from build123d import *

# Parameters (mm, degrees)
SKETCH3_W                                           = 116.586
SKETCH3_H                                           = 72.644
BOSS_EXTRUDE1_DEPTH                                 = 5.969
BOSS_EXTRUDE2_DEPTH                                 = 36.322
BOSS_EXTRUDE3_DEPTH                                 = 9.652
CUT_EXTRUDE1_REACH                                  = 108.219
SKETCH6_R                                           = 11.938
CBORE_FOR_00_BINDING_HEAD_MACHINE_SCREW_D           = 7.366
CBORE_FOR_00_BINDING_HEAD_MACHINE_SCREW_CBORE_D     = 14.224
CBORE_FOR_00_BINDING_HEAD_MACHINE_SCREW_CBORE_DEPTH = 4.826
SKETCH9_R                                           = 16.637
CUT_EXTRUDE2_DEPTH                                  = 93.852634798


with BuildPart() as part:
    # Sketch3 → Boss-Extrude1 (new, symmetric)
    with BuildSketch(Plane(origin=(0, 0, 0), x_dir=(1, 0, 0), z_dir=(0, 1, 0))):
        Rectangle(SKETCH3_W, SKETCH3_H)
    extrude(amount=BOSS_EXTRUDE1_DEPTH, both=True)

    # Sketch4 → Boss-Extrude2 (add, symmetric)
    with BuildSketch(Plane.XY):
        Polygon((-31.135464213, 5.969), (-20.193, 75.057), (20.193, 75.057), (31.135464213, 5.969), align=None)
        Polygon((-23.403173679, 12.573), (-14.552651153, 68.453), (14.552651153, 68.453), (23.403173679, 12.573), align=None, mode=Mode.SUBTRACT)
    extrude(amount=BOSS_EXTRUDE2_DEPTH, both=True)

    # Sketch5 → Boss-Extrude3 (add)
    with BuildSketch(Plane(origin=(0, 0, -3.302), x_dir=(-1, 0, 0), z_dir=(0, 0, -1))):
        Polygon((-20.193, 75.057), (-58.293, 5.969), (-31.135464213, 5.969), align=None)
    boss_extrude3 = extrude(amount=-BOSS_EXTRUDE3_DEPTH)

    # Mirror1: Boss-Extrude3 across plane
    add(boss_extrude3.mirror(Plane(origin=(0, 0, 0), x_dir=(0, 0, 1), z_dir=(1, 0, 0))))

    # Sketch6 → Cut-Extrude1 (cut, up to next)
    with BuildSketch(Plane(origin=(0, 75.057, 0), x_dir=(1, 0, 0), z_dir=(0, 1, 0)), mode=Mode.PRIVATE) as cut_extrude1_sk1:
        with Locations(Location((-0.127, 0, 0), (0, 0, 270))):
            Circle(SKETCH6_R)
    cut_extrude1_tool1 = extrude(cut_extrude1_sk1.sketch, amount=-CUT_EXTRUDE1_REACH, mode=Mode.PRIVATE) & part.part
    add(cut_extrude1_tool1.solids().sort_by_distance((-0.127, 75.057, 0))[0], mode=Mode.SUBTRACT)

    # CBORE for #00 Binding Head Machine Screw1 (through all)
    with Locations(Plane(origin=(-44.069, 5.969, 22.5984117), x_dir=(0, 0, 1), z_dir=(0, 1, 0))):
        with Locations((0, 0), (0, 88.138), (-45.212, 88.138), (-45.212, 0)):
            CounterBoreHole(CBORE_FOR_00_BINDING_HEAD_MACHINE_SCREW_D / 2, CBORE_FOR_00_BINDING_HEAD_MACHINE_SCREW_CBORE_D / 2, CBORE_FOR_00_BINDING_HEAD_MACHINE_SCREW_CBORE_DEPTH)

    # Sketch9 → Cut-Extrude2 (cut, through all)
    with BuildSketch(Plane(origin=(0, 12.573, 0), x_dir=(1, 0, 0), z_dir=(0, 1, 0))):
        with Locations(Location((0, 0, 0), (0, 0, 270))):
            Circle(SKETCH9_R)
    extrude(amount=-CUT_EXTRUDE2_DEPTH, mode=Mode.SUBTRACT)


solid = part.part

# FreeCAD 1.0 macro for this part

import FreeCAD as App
import Part
import Sketcher

V = App.Vector
Q = App.Units.Quantity

doc = App.newDocument("Part")
params = doc.addObject("Spreadsheet::Sheet", "Params")
for row, (alias, value) in enumerate([
    ("sketch1_width", "4.59 in"),
    ("sketch1_height", "2.86 in"),
    ("pad1_length", "0.47 in"),
    ("sketch2_width", "1.59 in"),
    ("pad2_length", "2.86 in"),
    ("pad3_length", "0.38 in"),
    ("sketch4_diameter", "0.94 in"),
    ("sketch5_diameter", "0.29 in"),
    ("hole_diameter", "0.29 in"),
    ("hole_cbore_diameter", "0.56 in"),
    ("hole_cbore_depth", "0.19 in"),
    ("sketch6_diameter", "1.31 in"),
], start=1):
    params.set(f"A{row}", alias)
    params.set(f"B{row}", "=" + value)
    params.setAlias(f"B{row}", alias)

body = doc.addObject("PartDesign::Body", "Body")

# Sketch on XZ plane
sketch1 = body.newObject("Sketcher::SketchObject", "Sketch")
sketch1.AttachmentSupport = (doc.getObject("XZ_Plane"), [""])
sketch1.MapMode = "FlatFace"
sketch1.addGeometry([
    Part.LineSegment(V(-58, -36, 0), V(-58, 36, 0)),
    Part.LineSegment(V(-58, 36, 0), V(58, 36, 0)),
    Part.LineSegment(V(58, 36, 0), V(58, -36, 0)),
    Part.LineSegment(V(58, -36, 0), V(-58, -36, 0)),
], False)
sketch1.addConstraint([
    Sketcher.Constraint("Coincident", 0, 2, 1, 1),
    Sketcher.Constraint("Coincident", 1, 2, 2, 1),
    Sketcher.Constraint("Coincident", 2, 2, 3, 1),
    Sketcher.Constraint("Coincident", 3, 2, 0, 1),
    Sketcher.Constraint("Vertical", 0),
    Sketcher.Constraint("Horizontal", 1),
    Sketcher.Constraint("Vertical", 2),
    Sketcher.Constraint("Horizontal", 3),
    Sketcher.Constraint("Symmetric", 0, 2, 2, 2, -1, 1),
    Sketcher.Constraint("DistanceX", 1, 1, 1, 2, Q("4.59 in")),
    Sketcher.Constraint("DistanceY", 0, 1, 0, 2, Q("2.86 in")),
])
sketch1.setExpression("Constraints[9]", "Params.sketch1_width")
sketch1.setExpression("Constraints[10]", "Params.sketch1_height")
pad1 = body.newObject("PartDesign::Pad", "Pad")
pad1.Profile = sketch1
pad1.setExpression("Length", "Params.pad1_length")
pad1.Midplane = True

# Sketch on XY plane
sketch2 = body.newObject("Sketcher::SketchObject", "Sketch001")
sketch2.AttachmentSupport = (doc.getObject("XY_Plane"), [""])
sketch2.MapMode = "FlatFace"
sketch2.addGeometry([
    Part.LineSegment(V(-20, 75, 0), V(-31, 6, 0)),  # 0
    Part.LineSegment(V(-31, 6, 0), V(31, 6, 0)),  # 1
    Part.LineSegment(V(31, 6, 0), V(20, 75, 0)),  # 2
    Part.LineSegment(V(20, 75, 0), V(-20, 75, 0)),  # 3
    Part.LineSegment(V(-23, 13, 0), V(-15, 68, 0)),  # 4
    Part.LineSegment(V(-15, 68, 0), V(15, 68, 0)),  # 5
    Part.LineSegment(V(15, 68, 0), V(23, 13, 0)),  # 6
    Part.LineSegment(V(23, 13, 0), V(-23, 13, 0)),  # 7
], False)
sketch2.addConstraint([
    Sketcher.Constraint("Coincident", 0, 2, 1, 1),
    Sketcher.Constraint("Coincident", 1, 2, 2, 1),
    Sketcher.Constraint("Coincident", 2, 2, 3, 1),
    Sketcher.Constraint("Coincident", 3, 2, 0, 1),
    Sketcher.Constraint("Coincident", 4, 2, 5, 1),
    Sketcher.Constraint("Coincident", 5, 2, 6, 1),
    Sketcher.Constraint("Coincident", 6, 2, 7, 1),
    Sketcher.Constraint("Coincident", 7, 2, 4, 1),
    Sketcher.Constraint("Horizontal", 1),
    Sketcher.Constraint("Horizontal", 3),
    Sketcher.Constraint("Horizontal", 5),
    Sketcher.Constraint("Horizontal", 7),
    Sketcher.Constraint("Parallel", 0, 4),
    Sketcher.Constraint("Parallel", 2, 6),
    Sketcher.Constraint("Equal", 0, 2),
    Sketcher.Constraint("Angle", 0, Q("-99 deg")),
    Sketcher.Constraint("DistanceX", 3, 2, 3, 1, Q("1.59 in")),
    Sketcher.Constraint("DistanceY", 6, 2, 5, 2, Q("2.2 in")),
    Sketcher.Constraint("DistanceY", 1, 2, 2, 2, Q("2.72 in")),
    Sketcher.Constraint("DistanceY", 4, 2, 3, 2, Q("0.26 in")),
    Sketcher.Constraint("DistanceY", -1, 1, 0, 2, Q("0.235 in")),
    Sketcher.Constraint("DistanceX", -1, 1, 2, 2, Q("0.795 in")),
    Sketcher.Constraint("DistanceX", 5, 1, 5, 2, Q("29.105302 mm")),
    Sketcher.Constraint("DistanceX", 4, 2, -1, 1, Q("14.552651 mm")),
])
sketch2.setExpression("Constraints[16]", "Params.sketch2_width")
pad2 = body.newObject("PartDesign::Pad", "Pad001")
pad2.Profile = sketch2
pad2.setExpression("Length", "Params.pad2_length")
pad2.Midplane = True

# Sketch on XY plane
sketch3 = body.newObject("Sketcher::SketchObject", "Sketch002")
sketch3.AttachmentSupport = (doc.getObject("XY_Plane"), [""])
sketch3.MapMode = "FlatFace"
sketch3.AttachmentOffset = App.Placement(V(0, 0, -0.13 * 25.4), App.Rotation())
sketch3.addGeometry([
    Part.LineSegment(V(20, 75, 0), V(58, 6, 0)),
    Part.LineSegment(V(58, 6, 0), V(31, 6, 0)),
    Part.LineSegment(V(31, 6, 0), V(20, 75, 0)),
], False)
sketch3.addConstraint([
    Sketcher.Constraint("Coincident", 0, 2, 1, 1),
    Sketcher.Constraint("Coincident", 1, 2, 2, 1),
    Sketcher.Constraint("Coincident", 2, 2, 0, 1),
    Sketcher.Constraint("Horizontal", 1),
    Sketcher.Constraint("Angle", 2, Q("99 deg")),
    Sketcher.Constraint("DistanceX", 2, 2, 0, 2, Q("1.5 in")),
    Sketcher.Constraint("DistanceY", 1, 2, 2, 2, Q("2.72 in")),
    Sketcher.Constraint("DistanceX", -1, 1, 0, 2, Q("2.295 in")),
    Sketcher.Constraint("DistanceY", -1, 1, 0, 2, Q("0.235 in")),
])
pad3 = body.newObject("PartDesign::Pad", "Pad002")
pad3.Profile = sketch3
pad3.setExpression("Length", "Params.pad3_length")
doc.recompute()

mirrored = body.newObject("PartDesign::Mirrored", "Mirrored")
mirrored.Originals = [pad3]
mirrored.MirrorPlane = (doc.getObject("YZ_Plane"), [""])
body.Tip = mirrored

# Sketch on XZ plane
sketch4 = body.newObject("Sketcher::SketchObject", "Sketch003")
sketch4.AttachmentSupport = (doc.getObject("XZ_Plane"), [""])
sketch4.MapMode = "FlatFace"
sketch4.AttachmentOffset = App.Placement(V(0, 0, -2.955 * 25.4), App.Rotation())
sketch4.addGeometry(Part.Circle(V(0, 0, 0), V(0, 0, 1), 12), False)
sketch4.addConstraint([
    Sketcher.Constraint("PointOnObject", 0, 3, -1),
    Sketcher.Constraint("Diameter", 0, Q("0.94 in")),
    Sketcher.Constraint("DistanceX", 0, 3, -1, 1, Q("0.005 in")),
])
sketch4.setExpression("Constraints[1]", "Params.sketch4_diameter")
pocket1 = body.newObject("PartDesign::Pocket", "Pocket")
pocket1.Profile = sketch4
pocket1.Type = "UpToFirst"
pocket1.Reversed = True

# Sketch on XZ plane
sketch5 = body.newObject("Sketcher::SketchObject", "Sketch004")
sketch5.AttachmentSupport = (doc.getObject("XZ_Plane"), [""])
sketch5.MapMode = "FlatFace"
sketch5.AttachmentOffset = App.Placement(V(0, 0, -0.235 * 25.4), App.Rotation())
sketch5.addGeometry([
    Part.Circle(V(-44.1, 22.6, 0), V(0, 0, 1), 3.7),
    Part.Circle(V(44.1, 22.6, 0), V(0, 0, 1), 3.7),
    Part.Circle(V(44.1, -22.6, 0), V(0, 0, 1), 3.7),
    Part.Circle(V(-44.1, -22.6, 0), V(0, 0, 1), 3.7),
], False)
sketch5.addConstraint([
    Sketcher.Constraint("Equal", 0, 1),
    Sketcher.Constraint("Equal", 1, 2),
    Sketcher.Constraint("Equal", 2, 3),
    Sketcher.Constraint("Symmetric", 0, 3, 1, 3, -2),
    Sketcher.Constraint("Symmetric", 2, 3, 3, 3, -2),
    Sketcher.Constraint("Vertical", 1, 3, 2, 3),
    Sketcher.Constraint("Diameter", 0, Q("0.29 in")),
    Sketcher.Constraint("DistanceX", 0, 3, 1, 3, Q("3.47 in")),
    Sketcher.Constraint("DistanceY", 2, 3, 1, 3, Q("1.78 in")),
    Sketcher.Constraint("DistanceY", -1, 1, 0, 3, Q("22.598412 mm")),
])
sketch5.setExpression("Constraints[6]", "Params.sketch5_diameter")
doc.recompute()
hole = body.newObject("PartDesign::Hole", "Hole")
hole.Profile = sketch5
hole.ThreadType = "None"
hole.setExpression("Diameter", "Params.hole_diameter")
hole.DepthType = "ThroughAll"
hole.HoleCutType = "Counterbore"
hole.setExpression("HoleCutDiameter", "Params.hole_cbore_diameter")
hole.setExpression("HoleCutDepth", "Params.hole_cbore_depth")
hole.Reversed = True

# Sketch on XZ plane
sketch6 = body.newObject("Sketcher::SketchObject", "Sketch005")
sketch6.AttachmentSupport = (doc.getObject("XZ_Plane"), [""])
sketch6.MapMode = "FlatFace"
sketch6.AttachmentOffset = App.Placement(V(0, 0, -0.495 * 25.4), App.Rotation())
sketch6.addGeometry(Part.Circle(V(0, 0, 0), V(0, 0, 1), 17), False)
sketch6.addConstraint([
    Sketcher.Constraint("Coincident", 0, 3, -1, 1),
    Sketcher.Constraint("Diameter", 0, Q("1.31 in")),
])
sketch6.setExpression("Constraints[1]", "Params.sketch6_diameter")
pocket2 = body.newObject("PartDesign::Pocket", "Pocket001")
pocket2.Profile = sketch6
pocket2.Type = "ThroughAll"
pocket2.Reversed = True

doc.recompute()
